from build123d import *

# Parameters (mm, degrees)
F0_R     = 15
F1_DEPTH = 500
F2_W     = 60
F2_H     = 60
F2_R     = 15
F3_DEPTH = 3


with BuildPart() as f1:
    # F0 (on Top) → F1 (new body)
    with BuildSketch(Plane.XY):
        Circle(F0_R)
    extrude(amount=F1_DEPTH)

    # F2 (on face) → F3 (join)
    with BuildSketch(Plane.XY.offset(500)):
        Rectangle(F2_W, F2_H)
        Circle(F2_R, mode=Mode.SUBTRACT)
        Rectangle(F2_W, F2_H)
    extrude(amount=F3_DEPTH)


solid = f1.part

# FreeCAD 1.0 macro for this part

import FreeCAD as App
import Part
import Sketcher

V = App.Vector
Q = App.Units.Quantity

doc = App.newDocument("Part")
params = doc.addObject("Spreadsheet::Sheet", "Params")
for row, (alias, value) in enumerate([
    ("sketch1_diameter", "30 mm"),
    ("pad1_length", "500 mm"),
    ("sketch2_width", "60 mm"),
    ("pad2_length", "3 mm"),
], start=1):
    params.set(f"A{row}", alias)
    params.set(f"B{row}", "=" + value)
    params.setAlias(f"B{row}", alias)

body = doc.addObject("PartDesign::Body", "Body")

sketch1 = body.newObject("Sketcher::SketchObject", "Sketch")
sketch1.AttachmentSupport = (doc.getObject("XY_Plane"), [""])
sketch1.MapMode = "FlatFace"
sketch1.addGeometry(Part.Circle(V(0, 0, 0), V(0, 0, 1), 15), False)
sketch1.addConstraint(Sketcher.Constraint("Coincident", 0, 3, -1, 1))
sketch1.addConstraint(Sketcher.Constraint("Diameter", 0, Q("30 mm")))
sketch1.setExpression("Constraints[1]", "Params.sketch1_diameter")
pad1 = body.newObject("PartDesign::Pad", "Pad")
pad1.Profile = sketch1
pad1.setExpression("Length", "Params.pad1_length")

sketch2 = body.newObject("Sketcher::SketchObject", "Sketch001")
sketch2.AttachmentSupport = (doc.getObject("XY_Plane"), [""])
sketch2.MapMode = "FlatFace"
sketch2.AttachmentOffset = App.Placement(V(0, 0, 500), App.Rotation())
sketch2.addGeometry(Part.LineSegment(V(-30, 30, 0), V(-30, -30, 0)), False)
sketch2.addGeometry(Part.LineSegment(V(-30, -30, 0), V(30, -30, 0)), False)
sketch2.addGeometry(Part.LineSegment(V(30, -30, 0), V(30, 30, 0)), False)
sketch2.addGeometry(Part.LineSegment(V(30, 30, 0), V(-30, 30, 0)), False)
sketch2.addConstraint(Sketcher.Constraint("Coincident", 0, 2, 1, 1))
sketch2.addConstraint(Sketcher.Constraint("Coincident", 1, 2, 2, 1))
sketch2.addConstraint(Sketcher.Constraint("Coincident", 2, 2, 3, 1))
sketch2.addConstraint(Sketcher.Constraint("Coincident", 3, 2, 0, 1))
sketch2.addConstraint(Sketcher.Constraint("Vertical", 0))
sketch2.addConstraint(Sketcher.Constraint("Horizontal", 1))
sketch2.addConstraint(Sketcher.Constraint("Vertical", 2))
sketch2.addConstraint(Sketcher.Constraint("Horizontal", 3))
sketch2.addConstraint(Sketcher.Constraint("Symmetric", 0, 2, 2, 2, -1, 1))
sketch2.addConstraint(Sketcher.Constraint("Equal", 3, 0))
sketch2.addConstraint(Sketcher.Constraint("DistanceX", 1, 1, 1, 2, Q("60 mm")))
sketch2.setExpression("Constraints[10]", "Params.sketch2_width")
pad2 = body.newObject("PartDesign::Pad", "Pad001")
pad2.Profile = sketch2
pad2.setExpression("Length", "Params.pad2_length")

doc.recompute()
